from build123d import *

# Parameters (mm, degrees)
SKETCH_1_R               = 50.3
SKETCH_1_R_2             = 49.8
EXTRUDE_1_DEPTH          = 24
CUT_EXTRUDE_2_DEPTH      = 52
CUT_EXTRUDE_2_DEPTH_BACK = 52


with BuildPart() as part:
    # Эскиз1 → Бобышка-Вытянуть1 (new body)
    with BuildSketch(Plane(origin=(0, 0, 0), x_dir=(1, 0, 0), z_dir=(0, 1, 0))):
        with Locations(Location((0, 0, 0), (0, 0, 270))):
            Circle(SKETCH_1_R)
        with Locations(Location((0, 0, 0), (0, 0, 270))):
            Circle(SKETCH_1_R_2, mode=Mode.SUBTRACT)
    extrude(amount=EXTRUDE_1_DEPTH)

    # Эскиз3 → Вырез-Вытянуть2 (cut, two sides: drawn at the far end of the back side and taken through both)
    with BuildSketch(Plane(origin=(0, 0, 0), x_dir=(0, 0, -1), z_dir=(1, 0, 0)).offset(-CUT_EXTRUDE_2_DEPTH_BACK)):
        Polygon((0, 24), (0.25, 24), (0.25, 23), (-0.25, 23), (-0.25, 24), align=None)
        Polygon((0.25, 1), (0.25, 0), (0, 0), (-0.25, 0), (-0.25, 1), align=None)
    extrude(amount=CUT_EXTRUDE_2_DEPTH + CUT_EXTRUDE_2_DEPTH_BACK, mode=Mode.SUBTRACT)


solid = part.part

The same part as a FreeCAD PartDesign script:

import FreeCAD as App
import Part
import Sketcher

V = App.Vector

doc = App.newDocument("Part")
body = doc.addObject("PartDesign::Body", "Body")

sketch1 = body.newObject("Sketcher::SketchObject", "Sketch")
sketch1.AttachmentSupport = (doc.getObject("XZ_Plane"), [""])
sketch1.MapMode = "FlatFace"
sketch1.addGeometry([
    Part.Circle(V(0, 0, 0), V(0, 0, 1), 50.3),
    Part.Circle(V(0, 0, 0), V(0, 0, 1), 49.8),
], False)
sketch1.addConstraint([
    Sketcher.Constraint("Coincident", 0, 3, -1, 1),
    Sketcher.Constraint("Coincident", 1, 3, -1, 1),
    Sketcher.Constraint("Diameter", 0, 100.6),
    Sketcher.Constraint("Diameter", 1, 99.6),
])
pad1 = body.newObject("PartDesign::Pad", "Pad")
pad1.Profile = sketch1
pad1.Length = 24
pad1.Reversed = True

sketch2 = body.newObject("Sketcher::SketchObject", "Sketch001")
sketch2.AttachmentSupport = (doc.getObject("YZ_Plane"), [""])
sketch2.MapMode = "FlatFace"
sketch2.addGeometry([
    Part.LineSegment(V(24, -0.25, 0), V(24, 0.25, 0)),
    Part.LineSegment(V(24, 0.25, 0), V(23, 0.25, 0)),
    Part.LineSegment(V(23, 0.25, 0), V(23, -0.25, 0)),
    Part.LineSegment(V(23, -0.25, 0), V(24, -0.25, 0)),
    Part.LineSegment(V(0, -0.25, 0), V(1, -0.25, 0)),
    Part.LineSegment(V(1, -0.25, 0), V(1, 0.25, 0)),
    Part.LineSegment(V(1, 0.25, 0), V(0, 0.25, 0)),
    Part.LineSegment(V(0, 0.25, 0), V(0, -0.25, 0)),
], False)
sketch2.addConstraint([
    Sketcher.Constraint("Coincident", 0, 2, 1, 1),
    Sketcher.Constraint("Coincident", 1, 2, 2, 1),
    Sketcher.Constraint("Coincident", 2, 2, 3, 1),
    Sketcher.Constraint("Coincident", 3, 2, 0, 1),
    Sketcher.Constraint("Coincident", 4, 2, 5, 1),
    Sketcher.Constraint("Coincident", 5, 2, 6, 1),
    Sketcher.Constraint("Coincident", 6, 2, 7, 1),
    Sketcher.Constraint("Coincident", 7, 2, 4, 1),
    Sketcher.Constraint("Vertical", 0),
    Sketcher.Constraint("Horizontal", 1),
    Sketcher.Constraint("Vertical", 2),
    Sketcher.Constraint("Horizontal", 3),
    Sketcher.Constraint("Horizontal", 4),
    Sketcher.Constraint("Vertical", 5),
    Sketcher.Constraint("Horizontal", 6),
    Sketcher.Constraint("Vertical", 7),
    Sketcher.Constraint("Symmetric", 6, 2, 7, 2, -1, 1),
    Sketcher.Constraint("Horizontal", 3, 2, 4, 2),
    Sketcher.Constraint("Horizontal", 1, 2, 5, 2),
    Sketcher.Constraint("Equal", 3, 4),
    Sketcher.Constraint("DistanceX", 1, 2, 1, 1, 1.0),
    Sketcher.Constraint("DistanceY", 0, 1, 0, 2, 0.5),
    Sketcher.Constraint("DistanceX", -1, 1, 0, 2, 24.0),
])
pocket1 = body.newObject("PartDesign::Pocket", "Pocket")
pocket1.Profile = sketch2
pocket1.Type = "ThroughAll"
pocket1.Midplane = True

doc.recompute()
